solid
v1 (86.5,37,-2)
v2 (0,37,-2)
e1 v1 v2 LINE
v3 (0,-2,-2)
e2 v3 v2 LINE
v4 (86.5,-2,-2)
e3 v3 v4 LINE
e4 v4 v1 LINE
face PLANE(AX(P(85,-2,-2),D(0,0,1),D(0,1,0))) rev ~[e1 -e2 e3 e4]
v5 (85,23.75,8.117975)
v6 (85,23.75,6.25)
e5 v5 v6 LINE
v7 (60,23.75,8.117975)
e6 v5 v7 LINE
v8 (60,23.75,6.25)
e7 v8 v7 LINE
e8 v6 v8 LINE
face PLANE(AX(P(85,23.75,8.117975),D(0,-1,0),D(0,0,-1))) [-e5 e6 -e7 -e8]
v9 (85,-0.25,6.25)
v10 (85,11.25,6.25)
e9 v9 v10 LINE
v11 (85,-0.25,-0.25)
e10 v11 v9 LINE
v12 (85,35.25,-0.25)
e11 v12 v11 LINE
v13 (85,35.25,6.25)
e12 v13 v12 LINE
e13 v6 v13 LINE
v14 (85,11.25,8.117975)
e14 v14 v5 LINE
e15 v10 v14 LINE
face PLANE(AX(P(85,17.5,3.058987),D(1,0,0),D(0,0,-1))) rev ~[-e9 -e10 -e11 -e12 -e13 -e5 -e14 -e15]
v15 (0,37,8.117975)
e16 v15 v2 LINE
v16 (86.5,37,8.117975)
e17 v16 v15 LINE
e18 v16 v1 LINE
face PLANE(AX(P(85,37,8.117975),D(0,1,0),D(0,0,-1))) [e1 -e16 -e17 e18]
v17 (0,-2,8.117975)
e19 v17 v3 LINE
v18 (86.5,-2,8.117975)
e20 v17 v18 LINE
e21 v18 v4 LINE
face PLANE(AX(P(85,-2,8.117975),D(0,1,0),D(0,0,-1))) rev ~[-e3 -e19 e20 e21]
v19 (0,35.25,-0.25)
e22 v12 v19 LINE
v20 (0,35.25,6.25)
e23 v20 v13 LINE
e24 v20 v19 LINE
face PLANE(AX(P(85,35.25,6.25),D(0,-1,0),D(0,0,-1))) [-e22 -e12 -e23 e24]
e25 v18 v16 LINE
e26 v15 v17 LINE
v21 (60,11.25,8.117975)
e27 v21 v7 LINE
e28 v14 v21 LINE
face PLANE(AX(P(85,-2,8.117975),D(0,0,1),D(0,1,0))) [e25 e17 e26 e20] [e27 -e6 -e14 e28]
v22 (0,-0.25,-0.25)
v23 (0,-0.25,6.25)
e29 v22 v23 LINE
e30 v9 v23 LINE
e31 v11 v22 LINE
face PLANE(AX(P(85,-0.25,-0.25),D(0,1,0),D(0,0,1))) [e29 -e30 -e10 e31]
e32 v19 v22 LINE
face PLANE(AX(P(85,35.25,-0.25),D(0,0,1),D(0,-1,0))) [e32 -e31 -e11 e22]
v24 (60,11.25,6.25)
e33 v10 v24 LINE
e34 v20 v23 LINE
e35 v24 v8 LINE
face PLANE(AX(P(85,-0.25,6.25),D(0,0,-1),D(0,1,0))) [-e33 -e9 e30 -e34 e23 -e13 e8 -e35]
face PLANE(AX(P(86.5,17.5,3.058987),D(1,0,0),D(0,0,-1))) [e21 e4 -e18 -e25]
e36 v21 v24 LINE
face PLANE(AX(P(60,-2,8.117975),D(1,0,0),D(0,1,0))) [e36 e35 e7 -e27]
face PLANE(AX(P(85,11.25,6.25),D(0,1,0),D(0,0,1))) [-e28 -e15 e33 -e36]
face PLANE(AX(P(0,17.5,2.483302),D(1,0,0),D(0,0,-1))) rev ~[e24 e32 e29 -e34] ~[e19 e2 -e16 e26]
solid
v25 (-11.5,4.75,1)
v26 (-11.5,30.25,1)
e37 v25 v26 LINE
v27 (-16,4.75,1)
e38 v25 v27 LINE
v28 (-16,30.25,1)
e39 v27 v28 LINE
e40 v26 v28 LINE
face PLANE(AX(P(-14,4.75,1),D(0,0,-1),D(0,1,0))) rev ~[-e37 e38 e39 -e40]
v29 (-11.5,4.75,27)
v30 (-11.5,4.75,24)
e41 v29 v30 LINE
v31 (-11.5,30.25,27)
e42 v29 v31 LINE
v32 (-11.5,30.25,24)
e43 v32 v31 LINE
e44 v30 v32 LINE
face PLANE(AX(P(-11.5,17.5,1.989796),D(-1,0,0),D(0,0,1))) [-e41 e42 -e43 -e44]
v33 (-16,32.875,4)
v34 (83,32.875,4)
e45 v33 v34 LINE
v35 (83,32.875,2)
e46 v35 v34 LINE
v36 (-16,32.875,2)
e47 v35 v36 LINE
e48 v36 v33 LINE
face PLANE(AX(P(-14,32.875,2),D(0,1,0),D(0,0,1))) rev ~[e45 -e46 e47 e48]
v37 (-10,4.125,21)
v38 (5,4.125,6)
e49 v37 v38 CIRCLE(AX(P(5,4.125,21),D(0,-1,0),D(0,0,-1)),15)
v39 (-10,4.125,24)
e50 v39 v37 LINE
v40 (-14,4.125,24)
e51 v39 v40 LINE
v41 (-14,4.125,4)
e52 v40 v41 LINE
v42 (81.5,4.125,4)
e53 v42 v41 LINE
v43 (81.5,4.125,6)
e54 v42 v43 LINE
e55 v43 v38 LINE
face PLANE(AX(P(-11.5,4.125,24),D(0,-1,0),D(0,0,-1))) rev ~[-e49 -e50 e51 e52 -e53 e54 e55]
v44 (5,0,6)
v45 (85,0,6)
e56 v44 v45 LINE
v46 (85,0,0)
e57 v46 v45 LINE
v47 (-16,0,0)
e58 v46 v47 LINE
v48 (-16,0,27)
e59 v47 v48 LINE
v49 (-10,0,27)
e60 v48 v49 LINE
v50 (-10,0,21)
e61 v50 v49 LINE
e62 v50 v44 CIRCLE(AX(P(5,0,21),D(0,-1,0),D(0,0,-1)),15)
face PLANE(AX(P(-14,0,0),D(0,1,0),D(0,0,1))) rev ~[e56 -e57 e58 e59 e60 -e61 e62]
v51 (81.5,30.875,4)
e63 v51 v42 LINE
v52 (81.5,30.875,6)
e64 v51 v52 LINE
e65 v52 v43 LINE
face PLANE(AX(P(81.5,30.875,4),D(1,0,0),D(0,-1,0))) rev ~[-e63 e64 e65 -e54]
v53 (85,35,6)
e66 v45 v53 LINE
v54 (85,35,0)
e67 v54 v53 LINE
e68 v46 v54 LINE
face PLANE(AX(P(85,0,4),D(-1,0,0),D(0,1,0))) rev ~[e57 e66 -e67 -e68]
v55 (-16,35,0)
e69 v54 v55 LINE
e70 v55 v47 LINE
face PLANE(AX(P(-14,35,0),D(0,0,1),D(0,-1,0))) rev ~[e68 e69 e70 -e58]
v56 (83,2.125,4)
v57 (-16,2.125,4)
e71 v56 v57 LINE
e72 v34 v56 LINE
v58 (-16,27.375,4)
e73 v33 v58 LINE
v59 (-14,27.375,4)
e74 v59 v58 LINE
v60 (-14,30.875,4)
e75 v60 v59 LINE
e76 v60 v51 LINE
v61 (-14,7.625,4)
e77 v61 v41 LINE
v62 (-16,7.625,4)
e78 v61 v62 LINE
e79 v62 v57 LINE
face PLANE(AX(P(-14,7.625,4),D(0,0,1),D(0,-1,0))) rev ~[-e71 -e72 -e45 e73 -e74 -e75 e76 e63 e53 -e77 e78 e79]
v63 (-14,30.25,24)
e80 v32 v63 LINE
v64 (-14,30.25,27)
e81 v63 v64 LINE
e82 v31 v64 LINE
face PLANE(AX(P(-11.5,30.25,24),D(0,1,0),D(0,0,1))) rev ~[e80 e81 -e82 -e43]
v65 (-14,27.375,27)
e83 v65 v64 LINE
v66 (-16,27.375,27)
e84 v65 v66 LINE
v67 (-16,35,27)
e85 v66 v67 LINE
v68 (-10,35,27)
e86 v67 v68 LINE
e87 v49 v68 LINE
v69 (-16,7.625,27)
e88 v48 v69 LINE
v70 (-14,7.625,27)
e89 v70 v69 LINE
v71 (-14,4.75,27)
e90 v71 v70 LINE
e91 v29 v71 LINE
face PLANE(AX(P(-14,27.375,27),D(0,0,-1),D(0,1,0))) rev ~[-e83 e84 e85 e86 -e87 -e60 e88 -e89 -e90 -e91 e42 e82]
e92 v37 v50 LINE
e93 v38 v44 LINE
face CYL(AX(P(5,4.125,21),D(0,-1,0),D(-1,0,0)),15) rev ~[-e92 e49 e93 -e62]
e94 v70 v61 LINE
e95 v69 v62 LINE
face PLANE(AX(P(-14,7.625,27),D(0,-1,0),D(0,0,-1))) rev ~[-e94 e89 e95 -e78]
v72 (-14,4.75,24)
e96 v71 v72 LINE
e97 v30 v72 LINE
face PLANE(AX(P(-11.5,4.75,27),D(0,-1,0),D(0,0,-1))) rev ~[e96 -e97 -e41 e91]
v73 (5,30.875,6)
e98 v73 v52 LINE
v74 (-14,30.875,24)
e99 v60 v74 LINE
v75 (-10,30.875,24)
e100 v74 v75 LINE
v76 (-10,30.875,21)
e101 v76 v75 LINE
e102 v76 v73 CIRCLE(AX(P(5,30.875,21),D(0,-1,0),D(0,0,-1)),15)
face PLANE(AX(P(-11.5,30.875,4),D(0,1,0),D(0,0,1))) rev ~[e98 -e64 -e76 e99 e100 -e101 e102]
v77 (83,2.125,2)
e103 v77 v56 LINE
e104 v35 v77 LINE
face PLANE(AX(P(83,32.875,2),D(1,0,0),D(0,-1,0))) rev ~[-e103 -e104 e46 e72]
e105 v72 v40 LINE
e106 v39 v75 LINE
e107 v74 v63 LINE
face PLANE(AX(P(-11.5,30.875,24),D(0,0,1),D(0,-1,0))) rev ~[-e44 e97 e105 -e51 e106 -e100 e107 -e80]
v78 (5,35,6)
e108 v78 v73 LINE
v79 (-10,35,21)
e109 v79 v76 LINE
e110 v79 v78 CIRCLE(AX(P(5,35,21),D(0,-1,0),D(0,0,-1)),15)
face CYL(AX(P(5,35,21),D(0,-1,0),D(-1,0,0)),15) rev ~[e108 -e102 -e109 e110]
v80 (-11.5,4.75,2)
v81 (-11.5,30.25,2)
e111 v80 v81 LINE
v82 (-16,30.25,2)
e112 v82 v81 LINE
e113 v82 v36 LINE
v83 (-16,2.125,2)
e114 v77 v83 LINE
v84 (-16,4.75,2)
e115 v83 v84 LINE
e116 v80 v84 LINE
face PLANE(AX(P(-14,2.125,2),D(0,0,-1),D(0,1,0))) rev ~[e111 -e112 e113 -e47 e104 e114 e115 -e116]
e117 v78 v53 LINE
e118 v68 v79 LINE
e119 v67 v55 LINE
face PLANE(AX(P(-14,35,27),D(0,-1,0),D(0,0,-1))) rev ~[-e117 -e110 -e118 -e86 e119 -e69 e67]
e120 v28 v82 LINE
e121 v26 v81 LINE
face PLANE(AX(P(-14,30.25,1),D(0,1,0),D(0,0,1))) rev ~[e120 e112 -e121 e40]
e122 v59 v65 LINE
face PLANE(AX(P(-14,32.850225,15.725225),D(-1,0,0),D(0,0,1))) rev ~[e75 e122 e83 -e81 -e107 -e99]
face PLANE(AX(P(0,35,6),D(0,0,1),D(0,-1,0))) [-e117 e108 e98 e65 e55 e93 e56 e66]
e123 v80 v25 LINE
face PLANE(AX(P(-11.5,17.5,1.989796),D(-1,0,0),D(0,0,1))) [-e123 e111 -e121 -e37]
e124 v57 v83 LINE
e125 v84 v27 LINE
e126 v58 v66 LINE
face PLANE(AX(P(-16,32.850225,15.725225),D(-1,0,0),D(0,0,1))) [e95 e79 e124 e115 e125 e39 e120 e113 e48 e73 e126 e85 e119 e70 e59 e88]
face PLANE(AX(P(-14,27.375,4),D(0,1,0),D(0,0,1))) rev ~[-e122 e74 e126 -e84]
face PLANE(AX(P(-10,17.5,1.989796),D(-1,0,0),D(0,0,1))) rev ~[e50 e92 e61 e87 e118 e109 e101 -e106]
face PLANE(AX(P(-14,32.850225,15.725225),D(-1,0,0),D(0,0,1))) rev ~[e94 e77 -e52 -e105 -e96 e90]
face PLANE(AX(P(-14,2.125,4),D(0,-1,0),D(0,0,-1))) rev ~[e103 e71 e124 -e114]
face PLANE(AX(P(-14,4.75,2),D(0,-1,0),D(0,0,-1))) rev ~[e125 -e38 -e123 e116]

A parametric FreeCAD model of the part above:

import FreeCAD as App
import Part
import Sketcher
from FreeCAD import Vector
Q = App.Units.Quantity


def edges_at(feature, points):
    """Names of the edges that pass closest to the given points."""
    edges = feature.Shape.Edges
    near = lambda p: min(range(len(edges)), key=lambda i: edges[i].distToShape(Part.Vertex(*p))[0])
    return sorted({f"Edge{near(p) + 1}" for p in points})

doc = App.newDocument("Part")
body = doc.addObject("PartDesign::Body", "Body")

# Sketch on XY plane
sketch1 = body.newObject("Sketcher::SketchObject", "Sketch")
sketch1.AttachmentSupport = (doc.getObject("XY_Plane"), [""])
sketch1.MapMode = "FlatFace"
sketch1.addGeometry(Part.LineSegment(Vector(0, 35, 0), Vector(0, 0, 0)), False)
sketch1.addGeometry(Part.LineSegment(Vector(0, 0, 0), Vector(85, 0, 0)), False)
sketch1.addGeometry(Part.LineSegment(Vector(85, 0, 0), Vector(85, 35, 0)), False)
sketch1.addGeometry(Part.LineSegment(Vector(85, 35, 0), Vector(0, 35, 0)), False)
sketch1.addConstraint(Sketcher.Constraint("Coincident", 0, 2, 1, 1))
sketch1.addConstraint(Sketcher.Constraint("Coincident", 1, 2, 2, 1))
sketch1.addConstraint(Sketcher.Constraint("Coincident", 2, 2, 3, 1))
sketch1.addConstraint(Sketcher.Constraint("Coincident", 3, 2, 0, 1))
sketch1.addConstraint(Sketcher.Constraint("Vertical", 0))
sketch1.addConstraint(Sketcher.Constraint("Horizontal", 1))
sketch1.addConstraint(Sketcher.Constraint("Vertical", 2))
sketch1.addConstraint(Sketcher.Constraint("Horizontal", 3))
sketch1.addConstraint(Sketcher.Constraint("Coincident", 0, 2, -1, 1))
sketch1.addConstraint(Sketcher.Constraint("DistanceX", 1, 1, 1, 2, Q("85 mm")))
sketch1.addConstraint(Sketcher.Constraint("DistanceY", 0, 2, 0, 1, Q("35 mm")))
pad1 = body.newObject("PartDesign::Pad", "Pad")
pad1.Profile = sketch1
pad1.Length = 2

# Sketch on XY plane
sketch2 = body.newObject("Sketcher::SketchObject", "Sketch001")
sketch2.AttachmentSupport = (doc.getObject("XY_Plane"), [""])
sketch2.MapMode = "FlatFace"
sketch2.AttachmentOffset = App.Placement(Vector(0, 0, 2), App.Rotation())
sketch2.addGeometry(Part.LineSegment(Vector(83, 2.1, 0), Vector(0, 2.1, 0)), False)
sketch2.addGeometry(Part.LineSegment(Vector(0, 2.1, 0), Vector(0, 0, 0)), False)
sketch2.addGeometry(Part.LineSegment(Vector(0, 0, 0), Vector(85, 0, 0)), False)
sketch2.addGeometry(Part.LineSegment(Vector(85, 0, 0), Vector(85, 35, 0)), False)
sketch2.addGeometry(Part.LineSegment(Vector(85, 35, 0), Vector(0, 35, 0)), False)
sketch2.addGeometry(Part.LineSegment(Vector(0, 35, 0), Vector(0, 32.9, 0)), False)
sketch2.addGeometry(Part.LineSegment(Vector(0, 32.9, 0), Vector(83, 32.9, 0)), False)
sketch2.addGeometry(Part.LineSegment(Vector(83, 32.9, 0), Vector(83, 2.1, 0)), False)
sketch2.addConstraint(Sketcher.Constraint("Coincident", 0, 2, 1, 1))
sketch2.addConstraint(Sketcher.Constraint("Coincident", 1, 2, 2, 1))
sketch2.addConstraint(Sketcher.Constraint("Coincident", 2, 2, 3, 1))
sketch2.addConstraint(Sketcher.Constraint("Coincident", 3, 2, 4, 1))
sketch2.addConstraint(Sketcher.Constraint("Coincident", 4, 2, 5, 1))
sketch2.addConstraint(Sketcher.Constraint("Coincident", 5, 2, 6, 1))
sketch2.addConstraint(Sketcher.Constraint("Coincident", 6, 2, 7, 1))
sketch2.addConstraint(Sketcher.Constraint("Coincident", 7, 2, 0, 1))
sketch2.addConstraint(Sketcher.Constraint("Horizontal", 0))
sketch2.addConstraint(Sketcher.Constraint("Vertical", 1))
sketch2.addConstraint(Sketcher.Constraint("Horizontal", 2))
sketch2.addConstraint(Sketcher.Constraint("Vertical", 3))
sketch2.addConstraint(Sketcher.Constraint("Horizontal", 4))
sketch2.addConstraint(Sketcher.Constraint("Vertical", 5))
sketch2.addConstraint(Sketcher.Constraint("Horizontal", 6))
sketch2.addConstraint(Sketcher.Constraint("Vertical", 7))
sketch2.addConstraint(Sketcher.Constraint("Coincident", 1, 2, -1, 1))
sketch2.addConstraint(Sketcher.Constraint("PointOnObject", 4, 2, -2))
sketch2.addConstraint(Sketcher.Constraint("Equal", 1, 5))
sketch2.addConstraint(Sketcher.Constraint("DistanceX", 0, 2, 0, 1, Q("83 mm")))
sketch2.addConstraint(Sketcher.Constraint("DistanceX", 2, 1, 2, 2, Q("85 mm")))
sketch2.addConstraint(Sketcher.Constraint("DistanceY", 3, 1, 3, 2, Q("35 mm")))
sketch2.addConstraint(Sketcher.Constraint("DistanceY", 7, 2, 7, 1, Q("30.75 mm")))
pad2 = body.newObject("PartDesign::Pad", "Pad001")
pad2.Profile = sketch2
pad2.Length = 2

# Sketch on XY plane
sketch3 = body.newObject("Sketcher::SketchObject", "Sketch002")
sketch3.AttachmentSupport = (doc.getObject("XY_Plane"), [""])
sketch3.MapMode = "FlatFace"
sketch3.AttachmentOffset = App.Placement(Vector(0, 0, 4), App.Rotation())
sketch3.addGeometry(Part.LineSegment(Vector(0, 4.1, 0), Vector(0, 0, 0)), False)
sketch3.addGeometry(Part.LineSegment(Vector(0, 0, 0), Vector(85, 0, 0)), False)
sketch3.addGeometry(Part.LineSegment(Vector(85, 0, 0), Vector(85, 35, 0)), False)
sketch3.addGeometry(Part.LineSegment(Vector(85, 35, 0), Vector(0, 35, 0)), False)
sketch3.addGeometry(Part.LineSegment(Vector(0, 35, 0), Vector(0, 30.9, 0)), False)
sketch3.addGeometry(Part.LineSegment(Vector(0, 30.9, 0), Vector(81.5, 30.9, 0)), False)
sketch3.addGeometry(Part.LineSegment(Vector(81.5, 30.9, 0), Vector(81.5, 4.1, 0)), False)
sketch3.addGeometry(Part.LineSegment(Vector(81.5, 4.1, 0), Vector(0, 4.1, 0)), False)
sketch3.addConstraint(Sketcher.Constraint("Coincident", 0, 2, 1, 1))
sketch3.addConstraint(Sketcher.Constraint("Coincident", 1, 2, 2, 1))
sketch3.addConstraint(Sketcher.Constraint("Coincident", 2, 2, 3, 1))
sketch3.addConstraint(Sketcher.Constraint("Coincident", 3, 2, 4, 1))
sketch3.addConstraint(Sketcher.Constraint("Coincident", 4, 2, 5, 1))
sketch3.addConstraint(Sketcher.Constraint("Coincident", 5, 2, 6, 1))
sketch3.addConstraint(Sketcher.Constraint("Coincident", 6, 2, 7, 1))
sketch3.addConstraint(Sketcher.Constraint("Coincident", 7, 2, 0, 1))
sketch3.addConstraint(Sketcher.Constraint("Vertical", 0))
sketch3.addConstraint(Sketcher.Constraint("Horizontal", 1))
sketch3.addConstraint(Sketcher.Constraint("Vertical", 2))
sketch3.addConstraint(Sketcher.Constraint("Horizontal", 3))
sketch3.addConstraint(Sketcher.Constraint("Vertical", 4))
sketch3.addConstraint(Sketcher.Constraint("Horizontal", 5))
sketch3.addConstraint(Sketcher.Constraint("Vertical", 6))
sketch3.addConstraint(Sketcher.Constraint("Horizontal", 7))
sketch3.addConstraint(Sketcher.Constraint("Coincident", 0, 2, -1, 1))
sketch3.addConstraint(Sketcher.Constraint("PointOnObject", 3, 2, -2))
sketch3.addConstraint(Sketcher.Constraint("Equal", 0, 4))
sketch3.addConstraint(Sketcher.Constraint("DistanceX", 1, 1, 1, 2, Q("85 mm")))
sketch3.addConstraint(Sketcher.Constraint("DistanceY", 2, 1, 2, 2, Q("35 mm")))
sketch3.addConstraint(Sketcher.Constraint("DistanceX", 5, 1, 5, 2, Q("81.5 mm")))
sketch3.addConstraint(Sketcher.Constraint("DistanceY", 6, 2, 6, 1, Q("26.75 mm")))
pad3 = body.newObject("PartDesign::Pad", "Pad002")
pad3.Profile = sketch3
pad3.Length = 2

# Sketch on YZ plane
sketch4 = body.newObject("Sketcher::SketchObject", "Sketch003")
sketch4.AttachmentSupport = (doc.getObject("YZ_Plane"), [""])
sketch4.MapMode = "FlatFace"
sketch4.addGeometry(Part.LineSegment(Vector(35, 6, 0), Vector(35, 0, 0)), False)
sketch4.addGeometry(Part.LineSegment(Vector(35, 0, 0), Vector(0, 0, 0)), False)
sketch4.addGeometry(Part.LineSegment(Vector(0, 0, 0), Vector(0, 6, 0)), False)
sketch4.addGeometry(Part.LineSegment(Vector(0, 6, 0), Vector(4.1, 6, 0)), False)
sketch4.addGeometry(Part.LineSegment(Vector(4.1, 6, 0), Vector(4.1, 4, 0)), False)
sketch4.addGeometry(Part.LineSegment(Vector(4.1, 4, 0), Vector(2.1, 4, 0)), False)
sketch4.addGeometry(Part.LineSegment(Vector(2.1, 4, 0), Vector(2.1, 2, 0)), False)
sketch4.addGeometry(Part.LineSegment(Vector(2.1, 2, 0), Vector(32.9, 2, 0)), False)
sketch4.addGeometry(Part.LineSegment(Vector(32.9, 2, 0), Vector(32.9, 4, 0)), False)
sketch4.addGeometry(Part.LineSegment(Vector(32.9, 4, 0), Vector(30.9, 4, 0)), False)
sketch4.addGeometry(Part.LineSegment(Vector(30.9, 4, 0), Vector(30.9, 6, 0)), False)
sketch4.addGeometry(Part.LineSegment(Vector(30.9, 6, 0), Vector(35, 6, 0)), False)
sketch4.addConstraint(Sketcher.Constraint("Coincident", 0, 2, 1, 1))
sketch4.addConstraint(Sketcher.Constraint("Coincident", 1, 2, 2, 1))
sketch4.addConstraint(Sketcher.Constraint("Coincident", 2, 2, 3, 1))
sketch4.addConstraint(Sketcher.Constraint("Coincident", 3, 2, 4, 1))
sketch4.addConstraint(Sketcher.Constraint("Coincident", 4, 2, 5, 1))
sketch4.addConstraint(Sketcher.Constraint("Coincident", 5, 2, 6, 1))
sketch4.addConstraint(Sketcher.Constraint("Coincident", 6, 2, 7, 1))
sketch4.addConstraint(Sketcher.Constraint("Coincident", 7, 2, 8, 1))
sketch4.addConstraint(Sketcher.Constraint("Coincident", 8, 2, 9, 1))
sketch4.addConstraint(Sketcher.Constraint("Coincident", 9, 2, 10, 1))
sketch4.addConstraint(Sketcher.Constraint("Coincident", 10, 2, 11, 1))
sketch4.addConstraint(Sketcher.Constraint("Coincident", 11, 2, 0, 1))
sketch4.addConstraint(Sketcher.Constraint("Vertical", 0))
sketch4.addConstraint(Sketcher.Constraint("Horizontal", 1))
sketch4.addConstraint(Sketcher.Constraint("Vertical", 2))
sketch4.addConstraint(Sketcher.Constraint("Horizontal", 3))
sketch4.addConstraint(Sketcher.Constraint("Vertical", 4))
sketch4.addConstraint(Sketcher.Constraint("Horizontal", 5))
sketch4.addConstraint(Sketcher.Constraint("Vertical", 6))
sketch4.addConstraint(Sketcher.Constraint("Horizontal", 7))
sketch4.addConstraint(Sketcher.Constraint("Vertical", 8))
sketch4.addConstraint(Sketcher.Constraint("Horizontal", 9))
sketch4.addConstraint(Sketcher.Constraint("Vertical", 10))
sketch4.addConstraint(Sketcher.Constraint("Horizontal", 11))
sketch4.addConstraint(Sketcher.Constraint("Coincident", 1, 2, -1, 1))
sketch4.addConstraint(Sketcher.Constraint("Horizontal", 5, 2, 8, 2))
sketch4.addConstraint(Sketcher.Constraint("Horizontal", 3, 2, 10, 2))
sketch4.addConstraint(Sketcher.Constraint("Equal", 5, 9))
sketch4.addConstraint(Sketcher.Constraint("Equal", 3, 11))
sketch4.addConstraint(Sketcher.Constraint("Equal", 9, 4))
sketch4.addConstraint(Sketcher.Constraint("Equal", 4, 6))
sketch4.addConstraint(Sketcher.Constraint("DistanceX", 1, 2, 1, 1, Q("35 mm")))
sketch4.addConstraint(Sketcher.Constraint("DistanceX", 5, 2, 5, 1, Q("2 mm")))
sketch4.addConstraint(Sketcher.Constraint("DistanceY", 0, 2, 0, 1, Q("6 mm")))
sketch4.addConstraint(Sketcher.Constraint("DistanceX", 7, 1, 7, 2, Q("30.75 mm")))
pad4 = body.newObject("PartDesign::Pad", "Pad003")
pad4.Profile = sketch4
pad4.Length = 10
pad4.Reversed = True

# Sketch on YZ plane
sketch5 = body.newObject("Sketcher::SketchObject", "Sketch004")
sketch5.AttachmentSupport = (doc.getObject("YZ_Plane"), [""])
sketch5.MapMode = "FlatFace"
sketch5.AttachmentOffset = App.Placement(Vector(0, 0, -10), App.Rotation())
sketch5.addGeometry(Part.LineSegment(Vector(0, 27, 0), Vector(35, 27, 0)), False)
sketch5.addGeometry(Part.LineSegment(Vector(35, 27, 0), Vector(35, 0, 0)), False)
sketch5.addGeometry(Part.LineSegment(Vector(35, 0, 0), Vector(0, 0, 0)), False)
sketch5.addGeometry(Part.LineSegment(Vector(0, 0, 0), Vector(0, 27, 0)), False)
sketch5.addGeometry(Part.LineSegment(Vector(30.9, 24, 0), Vector(4.1, 24, 0)), False)
sketch5.addGeometry(Part.LineSegment(Vector(4.1, 24, 0), Vector(4.1, 4, 0)), False)
sketch5.addGeometry(Part.LineSegment(Vector(4.1, 4, 0), Vector(2.1, 4, 0)), False)
sketch5.addGeometry(Part.LineSegment(Vector(2.1, 4, 0), Vector(2.1, 2, 0)), False)
sketch5.addGeometry(Part.LineSegment(Vector(2.1, 2, 0), Vector(32.9, 2, 0)), False)
sketch5.addGeometry(Part.LineSegment(Vector(32.9, 2, 0), Vector(32.9, 4, 0)), False)
sketch5.addGeometry(Part.LineSegment(Vector(32.9, 4, 0), Vector(30.9, 4, 0)), False)
sketch5.addGeometry(Part.LineSegment(Vector(30.9, 4, 0), Vector(30.9, 24, 0)), False)
sketch5.addConstraint(Sketcher.Constraint("Coincident", 0, 2, 1, 1))
sketch5.addConstraint(Sketcher.Constraint("Coincident", 1, 2, 2, 1))
sketch5.addConstraint(Sketcher.Constraint("Coincident", 2, 2, 3, 1))
sketch5.addConstraint(Sketcher.Constraint("Coincident", 3, 2, 0, 1))
sketch5.addConstraint(Sketcher.Constraint("Coincident", 4, 2, 5, 1))
sketch5.addConstraint(Sketcher.Constraint("Coincident", 5, 2, 6, 1))
sketch5.addConstraint(Sketcher.Constraint("Coincident", 6, 2, 7, 1))
sketch5.addConstraint(Sketcher.Constraint("Coincident", 7, 2, 8, 1))
sketch5.addConstraint(Sketcher.Constraint("Coincident", 8, 2, 9, 1))
sketch5.addConstraint(Sketcher.Constraint("Coincident", 9, 2, 10, 1))
sketch5.addConstraint(Sketcher.Constraint("Coincident", 10, 2, 11, 1))
sketch5.addConstraint(Sketcher.Constraint("Coincident", 11, 2, 4, 1))
sketch5.addConstraint(Sketcher.Constraint("Horizontal", 0))
sketch5.addConstraint(Sketcher.Constraint("Vertical", 1))
sketch5.addConstraint(Sketcher.Constraint("Horizontal", 2))
sketch5.addConstraint(Sketcher.Constraint("Vertical", 3))
sketch5.addConstraint(Sketcher.Constraint("Horizontal", 4))
sketch5.addConstraint(Sketcher.Constraint("Vertical", 5))
sketch5.addConstraint(Sketcher.Constraint("Horizontal", 6))
sketch5.addConstraint(Sketcher.Constraint("Vertical", 7))
sketch5.addConstraint(Sketcher.Constraint("Horizontal", 8))
sketch5.addConstraint(Sketcher.Constraint("Vertical", 9))
sketch5.addConstraint(Sketcher.Constraint("Horizontal", 10))
sketch5.addConstraint(Sketcher.Constraint("Vertical", 11))
sketch5.addConstraint(Sketcher.Constraint("Coincident", 2, 2, -1, 1))
sketch5.addConstraint(Sketcher.Constraint("Horizontal", 6, 2, 9, 2))
sketch5.addConstraint(Sketcher.Constraint("Equal", 6, 10))
sketch5.addConstraint(Sketcher.Constraint("Equal", 10, 7))
sketch5.addConstraint(Sketcher.Constraint("DistanceX", 0, 1, 0, 2, Q("35 mm")))
sketch5.addConstraint(Sketcher.Constraint("DistanceX", 6, 2, 6, 1, Q("2 mm")))
sketch5.addConstraint(Sketcher.Constraint("DistanceY", 1, 2, 1, 1, Q("27 mm")))
sketch5.addConstraint(Sketcher.Constraint("DistanceY", 5, 2, 5, 1, Q("20 mm")))
sketch5.addConstraint(Sketcher.Constraint("DistanceY", -1, 1, 4, 2, Q("24 mm")))
sketch5.addConstraint(Sketcher.Constraint("DistanceX", 4, 2, 4, 1, Q("26.75 mm")))
sketch5.addConstraint(Sketcher.Constraint("DistanceX", -1, 1, 4, 2, Q("4.125 mm")))
pad5 = body.newObject("PartDesign::Pad", "Pad004")
pad5.Profile = sketch5
pad5.Length = 1.5
pad5.Reversed = True

# Sketch on YZ plane
sketch6 = body.newObject("Sketcher::SketchObject", "Sketch005")
sketch6.AttachmentSupport = (doc.getObject("YZ_Plane"), [""])
sketch6.MapMode = "FlatFace"
sketch6.AttachmentOffset = App.Placement(Vector(0, 0, -11.5), App.Rotation())
sketch6.addGeometry(Part.LineSegment(Vector(30.2, 24, 0), Vector(30.2, 27, 0)), False)
sketch6.addGeometry(Part.LineSegment(Vector(30.2, 27, 0), Vector(35, 27, 0)), False)
sketch6.addGeometry(Part.LineSegment(Vector(35, 27, 0), Vector(35, 0, 0)), False)
sketch6.addGeometry(Part.LineSegment(Vector(35, 0, 0), Vector(0, 0, 0)), False)
sketch6.addGeometry(Part.LineSegment(Vector(0, 0, 0), Vector(0, 27, 0)), False)
sketch6.addGeometry(Part.LineSegment(Vector(0, 27, 0), Vector(4.8, 27, 0)), False)
sketch6.addGeometry(Part.LineSegment(Vector(4.8, 27, 0), Vector(4.8, 24, 0)), False)
sketch6.addGeometry(Part.LineSegment(Vector(4.8, 24, 0), Vector(4.1, 24, 0)), False)
sketch6.addGeometry(Part.LineSegment(Vector(4.1, 24, 0), Vector(4.1, 4, 0)), False)
sketch6.addGeometry(Part.LineSegment(Vector(4.1, 4, 0), Vector(2.1, 4, 0)), False)
sketch6.addGeometry(Part.LineSegment(Vector(2.1, 4, 0), Vector(2.1, 2, 0)), False)
sketch6.addGeometry(Part.LineSegment(Vector(2.1, 2, 0), Vector(4.8, 2, 0)), False)
sketch6.addGeometry(Part.LineSegment(Vector(4.8, 2, 0), Vector(4.8, 1, 0)), False)
sketch6.addGeometry(Part.LineSegment(Vector(4.8, 1, 0), Vector(30.2, 1, 0)), False)
sketch6.addGeometry(Part.LineSegment(Vector(30.2, 1, 0), Vector(30.2, 2, 0)), False)
sketch6.addGeometry(Part.LineSegment(Vector(30.2, 2, 0), Vector(32.9, 2, 0)), False)
sketch6.addGeometry(Part.LineSegment(Vector(32.9, 2, 0), Vector(32.9, 4, 0)), False)
sketch6.addGeometry(Part.LineSegment(Vector(32.9, 4, 0), Vector(30.9, 4, 0)), False)
sketch6.addGeometry(Part.LineSegment(Vector(30.9, 4, 0), Vector(30.9, 24, 0)), False)
sketch6.addGeometry(Part.LineSegment(Vector(30.9, 24, 0), Vector(30.2, 24, 0)), False)
sketch6.addConstraint(Sketcher.Constraint("Coincident", 0, 2, 1, 1))
sketch6.addConstraint(Sketcher.Constraint("Coincident", 1, 2, 2, 1))
sketch6.addConstraint(Sketcher.Constraint("Coincident", 2, 2, 3, 1))
sketch6.addConstraint(Sketcher.Constraint("Coincident", 3, 2, 4, 1))
sketch6.addConstraint(Sketcher.Constraint("Coincident", 4, 2, 5, 1))
sketch6.addConstraint(Sketcher.Constraint("Coincident", 5, 2, 6, 1))
sketch6.addConstraint(Sketcher.Constraint("Coincident", 6, 2, 7, 1))
sketch6.addConstraint(Sketcher.Constraint("Coincident", 7, 2, 8, 1))
sketch6.addConstraint(Sketcher.Constraint("Coincident", 8, 2, 9, 1))
sketch6.addConstraint(Sketcher.Constraint("Coincident", 9, 2, 10, 1))
sketch6.addConstraint(Sketcher.Constraint("Coincident", 10, 2, 11, 1))
sketch6.addConstraint(Sketcher.Constraint("Coincident", 11, 2, 12, 1))
sketch6.addConstraint(Sketcher.Constraint("Coincident", 12, 2, 13, 1))
sketch6.addConstraint(Sketcher.Constraint("Coincident", 13, 2, 14, 1))
sketch6.addConstraint(Sketcher.Constraint("Coincident", 14, 2, 15, 1))
sketch6.addConstraint(Sketcher.Constraint("Coincident", 15, 2, 16, 1))
sketch6.addConstraint(Sketcher.Constraint("Coincident", 16, 2, 17, 1))
sketch6.addConstraint(Sketcher.Constraint("Coincident", 17, 2, 18, 1))
sketch6.addConstraint(Sketcher.Constraint("Coincident", 18, 2, 19, 1))
sketch6.addConstraint(Sketcher.Constraint("Coincident", 19, 2, 0, 1))
sketch6.addConstraint(Sketcher.Constraint("Vertical", 0))
sketch6.addConstraint(Sketcher.Constraint("Horizontal", 1))
sketch6.addConstraint(Sketcher.Constraint("Vertical", 2))
sketch6.addConstraint(Sketcher.Constraint("Horizontal", 3))
sketch6.addConstraint(Sketcher.Constraint("Vertical", 4))
sketch6.addConstraint(Sketcher.Constraint("Horizontal", 5))
sketch6.addConstraint(Sketcher.Constraint("Vertical", 6))
sketch6.addConstraint(Sketcher.Constraint("Horizontal", 7))
sketch6.addConstraint(Sketcher.Constraint("Vertical", 8))
sketch6.addConstraint(Sketcher.Constraint("Horizontal", 9))
sketch6.addConstraint(Sketcher.Constraint("Vertical", 10))
sketch6.addConstraint(Sketcher.Constraint("Horizontal", 11))
sketch6.addConstraint(Sketcher.Constraint("Vertical", 12))
sketch6.addConstraint(Sketcher.Constraint("Horizontal", 13))
sketch6.addConstraint(Sketcher.Constraint("Vertical", 14))
sketch6.addConstraint(Sketcher.Constraint("Horizontal", 15))
sketch6.addConstraint(Sketcher.Constraint("Vertical", 16))
sketch6.addConstraint(Sketcher.Constraint("Horizontal", 17))
sketch6.addConstraint(Sketcher.Constraint("Vertical", 18))
sketch6.addConstraint(Sketcher.Constraint("Horizontal", 19))
sketch6.addConstraint(Sketcher.Constraint("Coincident", 3, 2, -1, 1))
sketch6.addConstraint(Sketcher.Constraint("Horizontal", 1, 2, 4, 2))
sketch6.addConstraint(Sketcher.Constraint("Horizontal", 11, 2, 14, 2))
sketch6.addConstraint(Sketcher.Constraint("Horizontal", 9, 2, 16, 2))
sketch6.addConstraint(Sketcher.Constraint("Horizontal", 7, 2, 18, 2))
sketch6.addConstraint(Sketcher.Constraint("Vertical", 6, 2, 11, 2))
sketch6.addConstraint(Sketcher.Constraint("Vertical", 0, 2, 13, 2))
sketch6.addConstraint(Sketcher.Constraint("Equal", 1, 5))
sketch6.addConstraint(Sketcher.Constraint("Equal", 11, 15))
sketch6.addConstraint(Sketcher.Constraint("Equal", 9, 17))
sketch6.addConstraint(Sketcher.Constraint("Equal", 17, 10))
sketch6.addConstraint(Sketcher.Constraint("DistanceX", 3, 2, 3, 1, Q("35 mm")))
sketch6.addConstraint(Sketcher.Constraint("DistanceX", 9, 2, 9, 1, Q("2 mm")))
sketch6.addConstraint(Sketcher.Constraint("DistanceY", 0, 1, 0, 2, Q("3 mm")))
sketch6.addConstraint(Sketcher.Constraint("DistanceY", 2, 2, 2, 1, Q("27 mm")))
sketch6.addConstraint(Sketcher.Constraint("DistanceY", 8, 2, 8, 1, Q("20 mm")))
sketch6.addConstraint(Sketcher.Constraint("DistanceY", 12, 2, 12, 1, Q("1 mm")))
sketch6.addConstraint(Sketcher.Constraint("DistanceX", 13, 1, 13, 2, Q("25.5 mm")))
sketch6.addConstraint(Sketcher.Constraint("DistanceX", 7, 2, 7, 1, Q("0.625 mm")))
pad6 = body.newObject("PartDesign::Pad", "Pad005")
pad6.Profile = sketch6
pad6.Length = 2.5
pad6.Reversed = True

# Sketch on YZ plane
sketch7 = body.newObject("Sketcher::SketchObject", "Sketch006")
sketch7.AttachmentSupport = (doc.getObject("YZ_Plane"), [""])
sketch7.MapMode = "FlatFace"
sketch7.AttachmentOffset = App.Placement(Vector(0, 0, -14), App.Rotation())
sketch7.addGeometry(Part.LineSegment(Vector(35, 27, 0), Vector(35, 0, 0)), False)
sketch7.addGeometry(Part.LineSegment(Vector(35, 0, 0), Vector(0, 0, 0)), False)
sketch7.addGeometry(Part.LineSegment(Vector(0, 0, 0), Vector(0, 27, 0)), False)
sketch7.addGeometry(Part.LineSegment(Vector(0, 27, 0), Vector(7.6, 27, 0)), False)
sketch7.addGeometry(Part.LineSegment(Vector(7.6, 27, 0), Vector(7.6, 4, 0)), False)
sketch7.addGeometry(Part.LineSegment(Vector(7.6, 4, 0), Vector(2.1, 4, 0)), False)
sketch7.addGeometry(Part.LineSegment(Vector(2.1, 4, 0), Vector(2.1, 2, 0)), False)
sketch7.addGeometry(Part.LineSegment(Vector(2.1, 2, 0), Vector(4.8, 2, 0)), False)
sketch7.addGeometry(Part.LineSegment(Vector(4.8, 2, 0), Vector(4.8, 1, 0)), False)
sketch7.addGeometry(Part.LineSegment(Vector(4.8, 1, 0), Vector(30.2, 1, 0)), False)
sketch7.addGeometry(Part.LineSegment(Vector(30.2, 1, 0), Vector(30.2, 2, 0)), False)
sketch7.addGeometry(Part.LineSegment(Vector(30.2, 2, 0), Vector(32.9, 2, 0)), False)
sketch7.addGeometry(Part.LineSegment(Vector(32.9, 2, 0), Vector(32.9, 4, 0)), False)
sketch7.addGeometry(Part.LineSegment(Vector(32.9, 4, 0), Vector(27.4, 4, 0)), False)
sketch7.addGeometry(Part.LineSegment(Vector(27.4, 4, 0), Vector(27.4, 27, 0)), False)
sketch7.addGeometry(Part.LineSegment(Vector(27.4, 27, 0), Vector(35, 27, 0)), False)
sketch7.addConstraint(Sketcher.Constraint("Coincident", 0, 2, 1, 1))
sketch7.addConstraint(Sketcher.Constraint("Coincident", 1, 2, 2, 1))
sketch7.addConstraint(Sketcher.Constraint("Coincident", 2, 2, 3, 1))
sketch7.addConstraint(Sketcher.Constraint("Coincident", 3, 2, 4, 1))
sketch7.addConstraint(Sketcher.Constraint("Coincident", 4, 2, 5, 1))
sketch7.addConstraint(Sketcher.Constraint("Coincident", 5, 2, 6, 1))
sketch7.addConstraint(Sketcher.Constraint("Coincident", 6, 2, 7, 1))
sketch7.addConstraint(Sketcher.Constraint("Coincident", 7, 2, 8, 1))
sketch7.addConstraint(Sketcher.Constraint("Coincident", 8, 2, 9, 1))
sketch7.addConstraint(Sketcher.Constraint("Coincident", 9, 2, 10, 1))
sketch7.addConstraint(Sketcher.Constraint("Coincident", 10, 2, 11, 1))
sketch7.addConstraint(Sketcher.Constraint("Coincident", 11, 2, 12, 1))
sketch7.addConstraint(Sketcher.Constraint("Coincident", 12, 2, 13, 1))
sketch7.addConstraint(Sketcher.Constraint("Coincident", 13, 2, 14, 1))
sketch7.addConstraint(Sketcher.Constraint("Coincident", 14, 2, 15, 1))
sketch7.addConstraint(Sketcher.Constraint("Coincident", 15, 2, 0, 1))
sketch7.addConstraint(Sketcher.Constraint("Vertical", 0))
sketch7.addConstraint(Sketcher.Constraint("Horizontal", 1))
sketch7.addConstraint(Sketcher.Constraint("Vertical", 2))
sketch7.addConstraint(Sketcher.Constraint("Horizontal", 3))
sketch7.addConstraint(Sketcher.Constraint("Vertical", 4))
sketch7.addConstraint(Sketcher.Constraint("Horizontal", 5))
sketch7.addConstraint(Sketcher.Constraint("Vertical", 6))
sketch7.addConstraint(Sketcher.Constraint("Horizontal", 7))
sketch7.addConstraint(Sketcher.Constraint("Vertical", 8))
sketch7.addConstraint(Sketcher.Constraint("Horizontal", 9))
sketch7.addConstraint(Sketcher.Constraint("Vertical", 10))
sketch7.addConstraint(Sketcher.Constraint("Horizontal", 11))
sketch7.addConstraint(Sketcher.Constraint("Vertical", 12))
sketch7.addConstraint(Sketcher.Constraint("Horizontal", 13))
sketch7.addConstraint(Sketcher.Constraint("Vertical", 14))
sketch7.addConstraint(Sketcher.Constraint("Horizontal", 15))
sketch7.addConstraint(Sketcher.Constraint("Coincident", 1, 2, -1, 1))
sketch7.addConstraint(Sketcher.Constraint("Horizontal", 7, 2, 10, 2))
sketch7.addConstraint(Sketcher.Constraint("Horizontal", 5, 2, 12, 2))
sketch7.addConstraint(Sketcher.Constraint("Horizontal", 3, 2, 14, 2))
sketch7.addConstraint(Sketcher.Constraint("Equal", 7, 11))
sketch7.addConstraint(Sketcher.Constraint("Equal", 5, 13))
sketch7.addConstraint(Sketcher.Constraint("Equal", 3, 15))
sketch7.addConstraint(Sketcher.Constraint("DistanceX", 1, 2, 1, 1, Q("35 mm")))
sketch7.addConstraint(Sketcher.Constraint("DistanceY", 0, 2, 0, 1, Q("27 mm")))
sketch7.addConstraint(Sketcher.Constraint("DistanceY", 4, 2, 4, 1, Q("23 mm")))
sketch7.addConstraint(Sketcher.Constraint("DistanceY", 6, 2, 6, 1, Q("2 mm")))
sketch7.addConstraint(Sketcher.Constraint("DistanceY", 8, 2, 8, 1, Q("1 mm")))
sketch7.addConstraint(Sketcher.Constraint("DistanceX", 5, 2, 5, 1, Q("5.5 mm")))
sketch7.addConstraint(Sketcher.Constraint("DistanceX", 9, 1, 9, 2, Q("25.5 mm")))
sketch7.addConstraint(Sketcher.Constraint("DistanceX", 3, 1, 3, 2, Q("7.625 mm")))
pad7 = body.newObject("PartDesign::Pad", "Pad006")
pad7.Profile = sketch7
pad7.Length = 2
pad7.Reversed = True
doc.recompute()

fillet = body.newObject("PartDesign::Fillet", "Fillet")
fillet.Base = (pad7, edges_at(pad7, [(-10, 2.062, 6), (-10, 32.938, 6)]))
fillet.Radius = 15
body2 = doc.addObject("PartDesign::Body", "Body001")

# Sketch on YZ plane
sketch8 = body2.newObject("Sketcher::SketchObject", "Sketch007")
sketch8.AttachmentSupport = (doc.getObject("YZ_Plane001"), [""])
sketch8.MapMode = "FlatFace"
sketch8.AttachmentOffset = App.Placement(Vector(0, 0, 85), App.Rotation())
sketch8.addGeometry(Part.LineSegment(Vector(-2, -2, 0), Vector(37, -2, 0)), False)
sketch8.addGeometry(Part.LineSegment(Vector(37, -2, 0), Vector(37, 8.1, 0)), False)
sketch8.addGeometry(Part.LineSegment(Vector(37, 8.1, 0), Vector(23.8, 8.1, 0)), False)
sketch8.addGeometry(Part.LineSegment(Vector(23.8, 8.1, 0), Vector(23.8, 6.2, 0)), False)
sketch8.addGeometry(Part.LineSegment(Vector(23.8, 6.2, 0), Vector(35.2, 6.2, 0)), False)
sketch8.addGeometry(Part.LineSegment(Vector(35.2, 6.2, 0), Vector(35.2, -0.2, 0)), False)
sketch8.addGeometry(Part.LineSegment(Vector(35.2, -0.2, 0), Vector(-0.2, -0.2, 0)), False)
sketch8.addGeometry(Part.LineSegment(Vector(-0.2, -0.2, 0), Vector(-0.2, 6.2, 0)), False)
sketch8.addGeometry(Part.LineSegment(Vector(-0.2, 6.2, 0), Vector(11.2, 6.2, 0)), False)
sketch8.addGeometry(Part.LineSegment(Vector(11.2, 6.2, 0), Vector(11.2, 8.1, 0)), False)
sketch8.addGeometry(Part.LineSegment(Vector(11.2, 8.1, 0), Vector(-2, 8.1, 0)), False)
sketch8.addGeometry(Part.LineSegment(Vector(-2, 8.1, 0), Vector(-2, -2, 0)), False)
sketch8.addConstraint(Sketcher.Constraint("Coincident", 0, 2, 1, 1))
sketch8.addConstraint(Sketcher.Constraint("Coincident", 1, 2, 2, 1))
sketch8.addConstraint(Sketcher.Constraint("Coincident", 2, 2, 3, 1))
sketch8.addConstraint(Sketcher.Constraint("Coincident", 3, 2, 4, 1))
sketch8.addConstraint(Sketcher.Constraint("Coincident", 4, 2, 5, 1))
sketch8.addConstraint(Sketcher.Constraint("Coincident", 5, 2, 6, 1))
sketch8.addConstraint(Sketcher.Constraint("Coincident", 6, 2, 7, 1))
sketch8.addConstraint(Sketcher.Constraint("Coincident", 7, 2, 8, 1))
sketch8.addConstraint(Sketcher.Constraint("Coincident", 8, 2, 9, 1))
sketch8.addConstraint(Sketcher.Constraint("Coincident", 9, 2, 10, 1))
sketch8.addConstraint(Sketcher.Constraint("Coincident", 10, 2, 11, 1))
sketch8.addConstraint(Sketcher.Constraint("Coincident", 11, 2, 0, 1))
sketch8.addConstraint(Sketcher.Constraint("Horizontal", 0))
sketch8.addConstraint(Sketcher.Constraint("Vertical", 1))
sketch8.addConstraint(Sketcher.Constraint("Horizontal", 2))
sketch8.addConstraint(Sketcher.Constraint("Vertical", 3))
sketch8.addConstraint(Sketcher.Constraint("Horizontal", 4))
sketch8.addConstraint(Sketcher.Constraint("Vertical", 5))
sketch8.addConstraint(Sketcher.Constraint("Horizontal", 6))
sketch8.addConstraint(Sketcher.Constraint("Vertical", 7))
sketch8.addConstraint(Sketcher.Constraint("Horizontal", 8))
sketch8.addConstraint(Sketcher.Constraint("Vertical", 9))
sketch8.addConstraint(Sketcher.Constraint("Horizontal", 10))
sketch8.addConstraint(Sketcher.Constraint("Vertical", 11))
sketch8.addConstraint(Sketcher.Constraint("Horizontal", 4, 2, 7, 2))
sketch8.addConstraint(Sketcher.Constraint("Horizontal", 2, 2, 9, 2))
sketch8.addConstraint(Sketcher.Constraint("Equal", 4, 8))
sketch8.addConstraint(Sketcher.Constraint("Equal", 2, 10))
sketch8.addConstraint(Sketcher.Constraint("DistanceX", 0, 1, 0, 2, Q("39 mm")))
sketch8.addConstraint(Sketcher.Constraint("DistanceX", 4, 1, 4, 2, Q("11.5 mm")))
sketch8.addConstraint(Sketcher.Constraint("DistanceX", 6, 2, 6, 1, Q("35.5 mm")))
sketch8.addConstraint(Sketcher.Constraint("DistanceY", 5, 2, 5, 1, Q("6.5 mm")))
sketch8.addConstraint(Sketcher.Constraint("DistanceX", -1, 1, 0, 2, Q("37 mm")))
sketch8.addConstraint(Sketcher.Constraint("DistanceY", 0, 2, -1, 1, Q("2 mm")))
sketch8.addConstraint(Sketcher.Constraint("DistanceY", -1, 1, 3, 2, Q("6.25 mm")))
sketch8.addConstraint(Sketcher.Constraint("DistanceY", 1, 1, 1, 2, Q("10.117975 mm")))
pad8 = body2.newObject("PartDesign::Pad", "Pad007")
pad8.Profile = sketch8
pad8.Length = 85
pad8.Reversed = True

# Sketch on YZ plane
sketch9 = body2.newObject("Sketcher::SketchObject", "Sketch008")
sketch9.AttachmentSupport = (doc.getObject("YZ_Plane001"), [""])
sketch9.MapMode = "FlatFace"
sketch9.AttachmentOffset = App.Placement(Vector(0, 0, 85), App.Rotation())
sketch9.addGeometry(Part.LineSegment(Vector(37, 8, 0), Vector(-2, 8, 0)), False)
sketch9.addGeometry(Part.LineSegment(Vector(-2, 8, 0), Vector(-2, -2, 0)), False)
sketch9.addGeometry(Part.LineSegment(Vector(-2, -2, 0), Vector(37, -2, 0)), False)
sketch9.addGeometry(Part.LineSegment(Vector(37, -2, 0), Vector(37, 8, 0)), False)
sketch9.addConstraint(Sketcher.Constraint("Coincident", 0, 2, 1, 1))
sketch9.addConstraint(Sketcher.Constraint("Coincident", 1, 2, 2, 1))
sketch9.addConstraint(Sketcher.Constraint("Coincident", 2, 2, 3, 1))
sketch9.addConstraint(Sketcher.Constraint("Coincident", 3, 2, 0, 1))
sketch9.addConstraint(Sketcher.Constraint("Horizontal", 0))
sketch9.addConstraint(Sketcher.Constraint("Vertical", 1))
sketch9.addConstraint(Sketcher.Constraint("Horizontal", 2))
sketch9.addConstraint(Sketcher.Constraint("Vertical", 3))
sketch9.addConstraint(Sketcher.Constraint("DistanceX", 0, 2, 0, 1, Q("39 mm")))
sketch9.addConstraint(Sketcher.Constraint("DistanceX", 0, 2, -1, 1, Q("2 mm")))
sketch9.addConstraint(Sketcher.Constraint("DistanceY", 1, 2, -1, 1, Q("2 mm")))
sketch9.addConstraint(Sketcher.Constraint("DistanceY", 1, 2, 1, 1, Q("10.117975 mm")))
pad9 = body2.newObject("PartDesign::Pad", "Pad008")
pad9.Profile = sketch9
pad9.Length = 1.5

# Sketch on XY plane
sketch10 = body2.newObject("Sketcher::SketchObject", "Sketch009")
sketch10.AttachmentSupport = (doc.getObject("XY_Plane001"), [""])
sketch10.MapMode = "FlatFace"
sketch10.AttachmentOffset = App.Placement(Vector(0, 0, 8.117975), App.Rotation())
sketch10.addGeometry(Part.LineSegment(Vector(0, 37, 0), Vector(0, -2, 0)), False)
sketch10.addGeometry(Part.LineSegment(Vector(0, -2, 0), Vector(60, -2, 0)), False)
sketch10.addGeometry(Part.LineSegment(Vector(60, -2, 0), Vector(60, 37, 0)), False)
sketch10.addGeometry(Part.LineSegment(Vector(60, 37, 0), Vector(0, 37, 0)), False)
sketch10.addConstraint(Sketcher.Constraint("Coincident", 0, 2, 1, 1))
sketch10.addConstraint(Sketcher.Constraint("Coincident", 1, 2, 2, 1))
sketch10.addConstraint(Sketcher.Constraint("Coincident", 2, 2, 3, 1))
sketch10.addConstraint(Sketcher.Constraint("Coincident", 3, 2, 0, 1))
sketch10.addConstraint(Sketcher.Constraint("Vertical", 0))
sketch10.addConstraint(Sketcher.Constraint("Horizontal", 1))
sketch10.addConstraint(Sketcher.Constraint("Vertical", 2))
sketch10.addConstraint(Sketcher.Constraint("Horizontal", 3))
sketch10.addConstraint(Sketcher.Constraint("PointOnObject", 0, 2, -2))
sketch10.addConstraint(Sketcher.Constraint("DistanceX", 1, 1, 1, 2, Q("60 mm")))
sketch10.addConstraint(Sketcher.Constraint("DistanceY", 0, 2, 0, 1, Q("39 mm")))
sketch10.addConstraint(Sketcher.Constraint("DistanceY", 0, 2, -1, 1, Q("2 mm")))
pad10 = body2.newObject("PartDesign::Pad", "Pad009")
pad10.Profile = sketch10
pad10.Length = 1.867975
pad10.Reversed = True

doc.recompute()
